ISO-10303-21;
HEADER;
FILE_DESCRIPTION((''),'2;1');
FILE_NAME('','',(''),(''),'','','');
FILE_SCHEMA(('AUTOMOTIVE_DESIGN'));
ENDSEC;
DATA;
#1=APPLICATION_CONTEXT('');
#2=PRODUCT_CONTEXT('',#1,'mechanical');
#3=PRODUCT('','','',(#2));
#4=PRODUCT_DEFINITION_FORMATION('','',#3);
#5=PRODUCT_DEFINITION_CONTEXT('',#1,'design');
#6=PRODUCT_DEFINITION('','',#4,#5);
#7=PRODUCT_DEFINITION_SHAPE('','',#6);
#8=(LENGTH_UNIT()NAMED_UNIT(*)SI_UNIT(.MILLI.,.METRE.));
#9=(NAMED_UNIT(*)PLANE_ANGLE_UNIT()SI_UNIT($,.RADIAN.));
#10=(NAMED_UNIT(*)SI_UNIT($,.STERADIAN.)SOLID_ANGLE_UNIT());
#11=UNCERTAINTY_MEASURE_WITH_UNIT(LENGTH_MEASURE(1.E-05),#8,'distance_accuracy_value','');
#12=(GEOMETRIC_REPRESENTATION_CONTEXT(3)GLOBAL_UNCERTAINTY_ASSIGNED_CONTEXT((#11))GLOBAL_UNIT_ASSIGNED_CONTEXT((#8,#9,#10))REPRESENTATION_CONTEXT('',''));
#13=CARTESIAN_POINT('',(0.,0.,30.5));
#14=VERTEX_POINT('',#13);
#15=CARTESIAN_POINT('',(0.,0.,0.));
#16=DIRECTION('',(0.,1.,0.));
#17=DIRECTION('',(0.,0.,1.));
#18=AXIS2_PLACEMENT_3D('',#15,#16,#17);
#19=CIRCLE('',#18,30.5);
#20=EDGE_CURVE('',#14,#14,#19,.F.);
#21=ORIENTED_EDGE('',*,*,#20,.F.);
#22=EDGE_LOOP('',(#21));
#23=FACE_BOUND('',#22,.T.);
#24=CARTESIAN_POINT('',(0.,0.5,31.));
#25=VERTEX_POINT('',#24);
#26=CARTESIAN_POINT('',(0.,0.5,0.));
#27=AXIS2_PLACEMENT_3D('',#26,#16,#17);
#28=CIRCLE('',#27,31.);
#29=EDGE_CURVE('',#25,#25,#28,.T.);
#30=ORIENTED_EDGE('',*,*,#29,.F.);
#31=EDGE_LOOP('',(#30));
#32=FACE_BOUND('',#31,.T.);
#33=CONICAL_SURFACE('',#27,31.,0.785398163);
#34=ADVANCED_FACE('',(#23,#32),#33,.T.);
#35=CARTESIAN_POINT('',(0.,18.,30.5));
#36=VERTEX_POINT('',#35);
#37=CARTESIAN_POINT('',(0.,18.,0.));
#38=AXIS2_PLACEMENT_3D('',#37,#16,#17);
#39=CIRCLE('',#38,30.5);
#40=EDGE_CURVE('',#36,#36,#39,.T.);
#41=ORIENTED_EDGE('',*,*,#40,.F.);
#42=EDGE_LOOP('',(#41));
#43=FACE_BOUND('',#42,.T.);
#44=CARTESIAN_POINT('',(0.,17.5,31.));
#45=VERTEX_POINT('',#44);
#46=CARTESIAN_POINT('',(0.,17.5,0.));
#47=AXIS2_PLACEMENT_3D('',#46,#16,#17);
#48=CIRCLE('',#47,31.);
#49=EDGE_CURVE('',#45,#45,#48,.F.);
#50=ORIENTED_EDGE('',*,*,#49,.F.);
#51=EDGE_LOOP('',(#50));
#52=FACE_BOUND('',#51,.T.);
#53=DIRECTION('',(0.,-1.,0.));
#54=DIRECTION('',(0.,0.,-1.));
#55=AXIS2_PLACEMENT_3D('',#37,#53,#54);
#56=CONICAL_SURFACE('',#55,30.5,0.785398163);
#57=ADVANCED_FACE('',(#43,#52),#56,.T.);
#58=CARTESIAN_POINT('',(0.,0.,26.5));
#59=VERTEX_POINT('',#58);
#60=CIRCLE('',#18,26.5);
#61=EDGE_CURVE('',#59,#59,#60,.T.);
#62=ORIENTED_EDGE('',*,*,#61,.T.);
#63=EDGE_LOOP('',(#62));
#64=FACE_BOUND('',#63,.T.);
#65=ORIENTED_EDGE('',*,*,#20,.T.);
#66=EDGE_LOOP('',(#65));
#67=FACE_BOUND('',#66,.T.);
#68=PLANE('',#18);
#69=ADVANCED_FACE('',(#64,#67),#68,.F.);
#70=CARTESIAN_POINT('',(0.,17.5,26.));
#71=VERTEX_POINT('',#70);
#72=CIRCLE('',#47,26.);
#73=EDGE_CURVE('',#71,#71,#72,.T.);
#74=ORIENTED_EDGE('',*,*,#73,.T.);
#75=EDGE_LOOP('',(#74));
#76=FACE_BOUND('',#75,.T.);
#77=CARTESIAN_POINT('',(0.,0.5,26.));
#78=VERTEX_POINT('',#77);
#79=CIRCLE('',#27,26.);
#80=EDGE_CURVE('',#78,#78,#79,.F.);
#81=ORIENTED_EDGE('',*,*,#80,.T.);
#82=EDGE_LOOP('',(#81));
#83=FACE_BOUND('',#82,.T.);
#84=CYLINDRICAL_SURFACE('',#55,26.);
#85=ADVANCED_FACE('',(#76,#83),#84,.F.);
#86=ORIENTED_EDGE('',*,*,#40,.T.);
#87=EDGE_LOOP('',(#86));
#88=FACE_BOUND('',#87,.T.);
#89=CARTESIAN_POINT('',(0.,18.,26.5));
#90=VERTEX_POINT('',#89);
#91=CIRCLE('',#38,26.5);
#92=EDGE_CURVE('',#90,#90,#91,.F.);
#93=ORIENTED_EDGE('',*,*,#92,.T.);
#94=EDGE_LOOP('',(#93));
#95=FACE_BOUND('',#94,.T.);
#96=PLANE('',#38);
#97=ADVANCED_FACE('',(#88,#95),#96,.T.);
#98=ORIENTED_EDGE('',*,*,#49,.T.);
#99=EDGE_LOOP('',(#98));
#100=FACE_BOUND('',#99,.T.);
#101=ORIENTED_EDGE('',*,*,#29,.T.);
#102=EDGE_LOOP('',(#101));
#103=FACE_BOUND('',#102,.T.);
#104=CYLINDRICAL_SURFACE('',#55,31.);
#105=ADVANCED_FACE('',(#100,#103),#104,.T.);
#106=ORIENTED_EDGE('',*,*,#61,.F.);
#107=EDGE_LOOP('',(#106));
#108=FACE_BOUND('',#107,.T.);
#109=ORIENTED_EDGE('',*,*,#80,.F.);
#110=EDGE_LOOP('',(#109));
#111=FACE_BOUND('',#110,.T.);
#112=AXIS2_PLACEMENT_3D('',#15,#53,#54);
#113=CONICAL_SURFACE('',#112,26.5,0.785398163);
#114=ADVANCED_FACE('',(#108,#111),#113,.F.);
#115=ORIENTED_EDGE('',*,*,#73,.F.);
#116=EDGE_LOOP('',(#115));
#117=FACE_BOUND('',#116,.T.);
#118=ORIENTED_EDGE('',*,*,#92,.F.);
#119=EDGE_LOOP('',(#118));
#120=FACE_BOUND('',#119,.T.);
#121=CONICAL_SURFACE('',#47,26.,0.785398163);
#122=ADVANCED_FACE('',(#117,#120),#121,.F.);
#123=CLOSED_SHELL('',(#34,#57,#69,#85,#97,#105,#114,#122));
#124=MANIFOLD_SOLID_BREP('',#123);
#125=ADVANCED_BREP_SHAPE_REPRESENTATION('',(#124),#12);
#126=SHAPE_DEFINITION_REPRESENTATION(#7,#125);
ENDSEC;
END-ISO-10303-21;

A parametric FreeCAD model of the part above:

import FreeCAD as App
import Part
import Sketcher
from FreeCAD import Vector
Q = App.Units.Quantity


def edges_at(feature, points):
    """Names of the edges that pass closest to the given points."""
    edges = feature.Shape.Edges
    near = lambda p: min(range(len(edges)), key=lambda i: edges[i].distToShape(Part.Vertex(*p))[0])
    return sorted({f"Edge{near(p) + 1}" for p in points})

doc = App.newDocument("Part")
params = doc.addObject("Spreadsheet::Sheet", "Params")
for row, (alias, value) in enumerate([
    ("sketch1_diameter", "62 mm"),
    ("sketch1_diameter2", "52 mm"),
    ("pad1_length", "18 mm"),
    ("chamfer_size", "0.5 mm"),
], start=1):
    params.set(f"A{row}", alias)
    params.set(f"B{row}", "=" + value)
    params.setAlias(f"B{row}", alias)

body = doc.addObject("PartDesign::Body", "Body")

# Sketch on XZ plane
sketch1 = body.newObject("Sketcher::SketchObject", "Sketch")
sketch1.AttachmentSupport = (doc.getObject("XZ_Plane"), [""])
sketch1.MapMode = "FlatFace"
sketch1.addGeometry([
    Part.Circle(Vector(0, 0, 0), Vector(0, 0, 1), 31),
    Part.Circle(Vector(0, 0, 0), Vector(0, 0, 1), 26),
], False)
sketch1.addConstraint([
    Sketcher.Constraint("Coincident", 0, 3, -1, 1),
    Sketcher.Constraint("Coincident", 1, 3, -1, 1),
    Sketcher.Constraint("Diameter", 0, Q("62 mm")),
    Sketcher.Constraint("Diameter", 1, Q("52 mm")),
])
sketch1.setExpression("Constraints[2]", "Params.sketch1_diameter")
sketch1.setExpression("Constraints[3]", "Params.sketch1_diameter2")
pad1 = body.newObject("PartDesign::Pad", "Pad")
pad1.Profile = sketch1
pad1.setExpression("Length", "Params.pad1_length")
pad1.Reversed = True
doc.recompute()

chamfer = body.newObject("PartDesign::Chamfer", "Chamfer")
chamfer.Base = (pad1, edges_at(pad1, [
    (0, 0, -31),
    (0, 18, -31),
    (0, 0, -26),
    (0, 18, -26),
]))
chamfer.setExpression("Size", "Params.chamfer_size")

doc.recompute()
